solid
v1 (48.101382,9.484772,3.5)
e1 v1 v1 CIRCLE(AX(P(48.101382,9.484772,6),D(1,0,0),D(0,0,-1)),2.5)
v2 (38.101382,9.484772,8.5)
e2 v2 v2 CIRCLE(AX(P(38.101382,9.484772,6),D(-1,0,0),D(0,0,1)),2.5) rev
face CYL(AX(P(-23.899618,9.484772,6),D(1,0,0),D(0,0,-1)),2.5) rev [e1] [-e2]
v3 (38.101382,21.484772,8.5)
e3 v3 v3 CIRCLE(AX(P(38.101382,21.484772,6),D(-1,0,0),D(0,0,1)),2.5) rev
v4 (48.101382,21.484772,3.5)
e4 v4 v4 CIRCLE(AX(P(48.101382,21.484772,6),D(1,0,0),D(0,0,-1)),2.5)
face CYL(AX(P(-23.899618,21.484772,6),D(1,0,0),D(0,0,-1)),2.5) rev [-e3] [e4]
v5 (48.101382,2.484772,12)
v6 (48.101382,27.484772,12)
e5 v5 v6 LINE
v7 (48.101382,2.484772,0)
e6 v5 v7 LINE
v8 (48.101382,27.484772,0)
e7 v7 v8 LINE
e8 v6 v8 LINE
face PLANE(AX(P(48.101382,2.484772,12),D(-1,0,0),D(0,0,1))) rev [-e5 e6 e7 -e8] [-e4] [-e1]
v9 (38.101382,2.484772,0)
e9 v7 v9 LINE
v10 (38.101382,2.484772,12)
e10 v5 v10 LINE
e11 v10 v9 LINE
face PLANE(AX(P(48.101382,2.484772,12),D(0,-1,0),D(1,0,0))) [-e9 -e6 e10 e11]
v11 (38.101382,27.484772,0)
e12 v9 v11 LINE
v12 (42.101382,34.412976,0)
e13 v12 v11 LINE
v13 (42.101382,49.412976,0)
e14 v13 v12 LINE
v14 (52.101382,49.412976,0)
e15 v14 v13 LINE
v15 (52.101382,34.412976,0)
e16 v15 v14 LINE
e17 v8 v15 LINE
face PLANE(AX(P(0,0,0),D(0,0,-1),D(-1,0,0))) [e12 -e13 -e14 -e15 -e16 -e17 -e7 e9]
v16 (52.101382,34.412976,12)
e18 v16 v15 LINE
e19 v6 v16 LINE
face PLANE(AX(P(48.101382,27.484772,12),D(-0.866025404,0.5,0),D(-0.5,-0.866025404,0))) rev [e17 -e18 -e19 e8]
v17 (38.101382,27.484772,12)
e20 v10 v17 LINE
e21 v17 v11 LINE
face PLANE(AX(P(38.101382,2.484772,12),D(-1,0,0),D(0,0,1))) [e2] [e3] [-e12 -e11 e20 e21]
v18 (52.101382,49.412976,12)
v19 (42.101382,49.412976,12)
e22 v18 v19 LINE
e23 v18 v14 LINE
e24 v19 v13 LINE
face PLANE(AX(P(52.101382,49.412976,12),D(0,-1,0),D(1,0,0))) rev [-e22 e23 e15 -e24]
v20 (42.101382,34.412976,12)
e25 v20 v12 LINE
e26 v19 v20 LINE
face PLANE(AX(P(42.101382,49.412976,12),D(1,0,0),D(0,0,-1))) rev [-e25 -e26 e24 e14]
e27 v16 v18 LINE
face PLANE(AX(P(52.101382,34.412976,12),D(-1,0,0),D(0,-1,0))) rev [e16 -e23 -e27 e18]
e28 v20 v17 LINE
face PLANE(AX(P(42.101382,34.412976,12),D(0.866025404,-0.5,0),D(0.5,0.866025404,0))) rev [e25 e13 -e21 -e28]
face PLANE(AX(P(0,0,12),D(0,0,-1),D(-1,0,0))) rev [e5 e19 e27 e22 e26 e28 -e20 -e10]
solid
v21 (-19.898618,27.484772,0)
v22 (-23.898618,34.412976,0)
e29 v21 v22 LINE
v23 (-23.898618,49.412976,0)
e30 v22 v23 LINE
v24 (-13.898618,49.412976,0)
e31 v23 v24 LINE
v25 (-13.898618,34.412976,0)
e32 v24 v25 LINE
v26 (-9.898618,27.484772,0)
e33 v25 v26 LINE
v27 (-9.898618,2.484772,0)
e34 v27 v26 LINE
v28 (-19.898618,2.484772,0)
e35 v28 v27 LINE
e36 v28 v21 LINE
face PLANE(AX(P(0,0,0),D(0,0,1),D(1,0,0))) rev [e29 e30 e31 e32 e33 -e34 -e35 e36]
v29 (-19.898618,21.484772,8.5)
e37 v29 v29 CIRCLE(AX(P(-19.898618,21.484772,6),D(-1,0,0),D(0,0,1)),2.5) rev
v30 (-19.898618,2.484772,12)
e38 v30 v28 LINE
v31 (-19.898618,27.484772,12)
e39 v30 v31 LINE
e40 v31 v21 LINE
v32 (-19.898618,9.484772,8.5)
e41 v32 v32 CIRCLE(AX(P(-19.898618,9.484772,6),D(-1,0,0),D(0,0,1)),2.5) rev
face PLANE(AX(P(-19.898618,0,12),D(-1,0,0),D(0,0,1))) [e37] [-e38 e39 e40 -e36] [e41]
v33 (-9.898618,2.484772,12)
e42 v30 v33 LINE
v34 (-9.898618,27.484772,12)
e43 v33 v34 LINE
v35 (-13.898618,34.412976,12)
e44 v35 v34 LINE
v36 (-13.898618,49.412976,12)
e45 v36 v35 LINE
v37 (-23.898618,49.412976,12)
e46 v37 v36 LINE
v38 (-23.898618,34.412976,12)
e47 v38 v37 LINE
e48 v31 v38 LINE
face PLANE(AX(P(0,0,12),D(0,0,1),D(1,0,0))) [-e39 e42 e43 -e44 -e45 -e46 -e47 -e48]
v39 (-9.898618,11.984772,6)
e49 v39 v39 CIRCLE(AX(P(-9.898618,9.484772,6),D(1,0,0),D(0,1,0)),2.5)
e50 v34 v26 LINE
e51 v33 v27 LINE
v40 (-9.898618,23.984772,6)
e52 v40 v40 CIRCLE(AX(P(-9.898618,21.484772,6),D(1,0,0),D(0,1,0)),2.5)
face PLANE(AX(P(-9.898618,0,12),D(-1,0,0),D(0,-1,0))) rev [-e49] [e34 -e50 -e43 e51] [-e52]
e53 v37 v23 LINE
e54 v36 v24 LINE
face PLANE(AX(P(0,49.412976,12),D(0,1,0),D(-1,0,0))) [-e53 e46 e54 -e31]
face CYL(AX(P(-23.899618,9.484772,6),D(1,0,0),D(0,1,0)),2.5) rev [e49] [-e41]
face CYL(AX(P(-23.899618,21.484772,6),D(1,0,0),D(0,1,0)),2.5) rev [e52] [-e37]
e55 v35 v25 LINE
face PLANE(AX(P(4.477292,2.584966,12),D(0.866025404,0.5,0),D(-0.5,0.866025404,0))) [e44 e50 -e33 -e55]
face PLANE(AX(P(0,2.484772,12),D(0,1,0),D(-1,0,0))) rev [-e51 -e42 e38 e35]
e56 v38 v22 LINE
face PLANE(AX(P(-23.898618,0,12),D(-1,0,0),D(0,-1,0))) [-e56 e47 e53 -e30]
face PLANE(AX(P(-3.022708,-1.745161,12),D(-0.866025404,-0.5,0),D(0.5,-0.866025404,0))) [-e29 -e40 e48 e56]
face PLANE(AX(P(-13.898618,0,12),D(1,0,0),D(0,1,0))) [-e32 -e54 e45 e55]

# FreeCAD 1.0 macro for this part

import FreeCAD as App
import Part
import Sketcher
from FreeCAD import Vector
Q = App.Units.Quantity


def add_polygon(sketch, points):
    """Adds a closed chain of lines whose ends are joined by coincident constraints."""
    first, n = sketch.GeometryCount, len(points)
    for a, b in zip(points, points[1:] + points[:1]):
        sketch.addGeometry(Part.LineSegment(App.Vector(*a, 0), App.Vector(*b, 0)), False)
    for i in range(n):
        sketch.addConstraint(Sketcher.Constraint("Coincident", first + i, 2, first + (i + 1) % n, 1))

doc = App.newDocument("Part")
body = doc.addObject("PartDesign::Body", "Body")

# Sketch on XY plane
sketch1 = doc.addObject("Sketcher::SketchObject", "Sketch")
body.addObject(sketch1)
sketch1.AttachmentSupport = (doc.XY_Plane, [""])
sketch1.MapMode = "FlatFace"
add_polygon(sketch1, [(42, 34), (38, 27), (38, 2), (48, 2), (48, 27), (52, 34), (52, 49), (42, 49)])  # lines 0-7
sketch1.addConstraint(Sketcher.Constraint("Vertical", 1))
sketch1.addConstraint(Sketcher.Constraint("Horizontal", 2))
sketch1.addConstraint(Sketcher.Constraint("Vertical", 3))
sketch1.addConstraint(Sketcher.Constraint("Vertical", 5))
sketch1.addConstraint(Sketcher.Constraint("Horizontal", 6))
sketch1.addConstraint(Sketcher.Constraint("Vertical", 7))
sketch1.addConstraint(Sketcher.Constraint("Parallel", 0, 4))
sketch1.addConstraint(Sketcher.Constraint("Horizontal", 0, 2, 3, 2))
sketch1.addConstraint(Sketcher.Constraint("Horizontal", 4, 2, 7, 2))
sketch1.addConstraint(Sketcher.Constraint("DistanceX", 2, 1, 2, 2, Q("10 mm")))
sketch1.addConstraint(Sketcher.Constraint("DistanceY", 1, 2, 1, 1, Q("25 mm")))
sketch1.addConstraint(Sketcher.Constraint("DistanceY", 5, 1, 5, 2, Q("15 mm")))
sketch1.addConstraint(Sketcher.Constraint("Angle", 0, Q("-120 deg")))
sketch1.addConstraint(Sketcher.Constraint("Distance", 0, Q("8 mm")))
sketch1.addConstraint(Sketcher.Constraint("DistanceX", -1, 1, 0, 2, Q("38.101382 mm")))
sketch1.addConstraint(Sketcher.Constraint("DistanceY", -1, 1, 0, 2, Q("27.484772 mm")))
pad1 = doc.addObject("PartDesign::Pad", "Pad")
body.addObject(pad1)
pad1.Profile = sketch1
pad1.Length = 12

# Sketch on YZ plane
sketch2 = doc.addObject("Sketcher::SketchObject", "Sketch001")
body.addObject(sketch2)
sketch2.AttachmentSupport = (doc.YZ_Plane, [""])
sketch2.MapMode = "FlatFace"
sketch2.AttachmentOffset = App.Placement(Vector(0, 0, 48.101382), App.Rotation())
sketch2.addGeometry(Part.Circle(Vector(21.5, 6, 0), Vector(0, 0, 1), 2.5), False)
sketch2.addGeometry(Part.Circle(Vector(9.5, 6, 0), Vector(0, 0, 1), 2.5), False)
sketch2.addConstraint(Sketcher.Constraint("Equal", 0, 1))
sketch2.addConstraint(Sketcher.Constraint("Horizontal", 0, 3, 1, 3))
sketch2.addConstraint(Sketcher.Constraint("Diameter", 0, Q("5 mm")))
sketch2.addConstraint(Sketcher.Constraint("DistanceY", -1, 1, 0, 3, Q("6 mm")))
sketch2.addConstraint(Sketcher.Constraint("DistanceX", 1, 3, 0, 3, Q("12 mm")))
sketch2.addConstraint(Sketcher.Constraint("DistanceX", -1, 1, 0, 3, Q("21.484772 mm")))
pocket1 = doc.addObject("PartDesign::Pocket", "Pocket")
body.addObject(pocket1)
pocket1.Profile = sketch2
pocket1.Length = 10
body2 = doc.addObject("PartDesign::Body", "Body001")

# Sketch on XY plane
sketch3 = doc.addObject("Sketcher::SketchObject", "Sketch002")
body2.addObject(sketch3)
sketch3.AttachmentSupport = (doc.getObject("XY_Plane001"), [""])
sketch3.MapMode = "FlatFace"
add_polygon(sketch3, [(-10, 27), (-14, 34), (-14, 49), (-24, 49), (-24, 34), (-20, 27), (-20, 2), (-10, 2)])  # lines 0-7
sketch3.addConstraint(Sketcher.Constraint("Vertical", 1))
sketch3.addConstraint(Sketcher.Constraint("Horizontal", 2))
sketch3.addConstraint(Sketcher.Constraint("Vertical", 3))
sketch3.addConstraint(Sketcher.Constraint("Vertical", 5))
sketch3.addConstraint(Sketcher.Constraint("Horizontal", 6))
sketch3.addConstraint(Sketcher.Constraint("Vertical", 7))
sketch3.addConstraint(Sketcher.Constraint("Parallel", 0, 4))
sketch3.addConstraint(Sketcher.Constraint("Horizontal", 0, 2, 3, 2))
sketch3.addConstraint(Sketcher.Constraint("Horizontal", 4, 2, 7, 2))
sketch3.addConstraint(Sketcher.Constraint("DistanceX", 2, 2, 2, 1, Q("10 mm")))
sketch3.addConstraint(Sketcher.Constraint("DistanceY", 1, 1, 1, 2, Q("15 mm")))
sketch3.addConstraint(Sketcher.Constraint("DistanceY", 5, 2, 5, 1, Q("25 mm")))
sketch3.addConstraint(Sketcher.Constraint("Angle", 0, Q("120 deg")))
sketch3.addConstraint(Sketcher.Constraint("Distance", 0, Q("8 mm")))
sketch3.addConstraint(Sketcher.Constraint("DistanceX", 0, 2, -1, 1, Q("13.898618 mm")))
sketch3.addConstraint(Sketcher.Constraint("DistanceY", -1, 1, 0, 2, Q("34.412976 mm")))
pad2 = doc.addObject("PartDesign::Pad", "Pad001")
body2.addObject(pad2)
pad2.Profile = sketch3
pad2.Length = 12

# Sketch on YZ plane
sketch4 = doc.addObject("Sketcher::SketchObject", "Sketch003")
body2.addObject(sketch4)
sketch4.AttachmentSupport = (doc.getObject("YZ_Plane001"), [""])
sketch4.MapMode = "FlatFace"
sketch4.AttachmentOffset = App.Placement(Vector(0, 0, -9.898618), App.Rotation())
sketch4.addGeometry(Part.Circle(Vector(21.5, 6, 0), Vector(0, 0, 1), 2.5), False)
sketch4.addConstraint(Sketcher.Constraint("Diameter", 0, Q("5 mm")))
sketch4.addConstraint(Sketcher.Constraint("DistanceY", -1, 1, 0, 3, Q("6 mm")))
sketch4.addConstraint(Sketcher.Constraint("DistanceX", -1, 1, 0, 3, Q("21.484772 mm")))
pocket2 = doc.addObject("PartDesign::Pocket", "Pocket001")
body2.addObject(pocket2)
pocket2.Profile = sketch4
pocket2.Length = 10

# Sketch on YZ plane
sketch5 = doc.addObject("Sketcher::SketchObject", "Sketch004")
body2.addObject(sketch5)
sketch5.AttachmentSupport = (doc.getObject("YZ_Plane001"), [""])
sketch5.MapMode = "FlatFace"
sketch5.AttachmentOffset = App.Placement(Vector(0, 0, -9.898618), App.Rotation())
sketch5.addGeometry(Part.Circle(Vector(9.5, 6, 0), Vector(0, 0, 1), 2.5), False)
sketch5.addConstraint(Sketcher.Constraint("Diameter", 0, Q("5 mm")))
sketch5.addConstraint(Sketcher.Constraint("DistanceY", -1, 1, 0, 3, Q("6 mm")))
sketch5.addConstraint(Sketcher.Constraint("DistanceX", -1, 1, 0, 3, Q("9.484772 mm")))
pocket3 = doc.addObject("PartDesign::Pocket", "Pocket002")
body2.addObject(pocket3)
pocket3.Profile = sketch5
pocket3.Length = 10

doc.recompute()
